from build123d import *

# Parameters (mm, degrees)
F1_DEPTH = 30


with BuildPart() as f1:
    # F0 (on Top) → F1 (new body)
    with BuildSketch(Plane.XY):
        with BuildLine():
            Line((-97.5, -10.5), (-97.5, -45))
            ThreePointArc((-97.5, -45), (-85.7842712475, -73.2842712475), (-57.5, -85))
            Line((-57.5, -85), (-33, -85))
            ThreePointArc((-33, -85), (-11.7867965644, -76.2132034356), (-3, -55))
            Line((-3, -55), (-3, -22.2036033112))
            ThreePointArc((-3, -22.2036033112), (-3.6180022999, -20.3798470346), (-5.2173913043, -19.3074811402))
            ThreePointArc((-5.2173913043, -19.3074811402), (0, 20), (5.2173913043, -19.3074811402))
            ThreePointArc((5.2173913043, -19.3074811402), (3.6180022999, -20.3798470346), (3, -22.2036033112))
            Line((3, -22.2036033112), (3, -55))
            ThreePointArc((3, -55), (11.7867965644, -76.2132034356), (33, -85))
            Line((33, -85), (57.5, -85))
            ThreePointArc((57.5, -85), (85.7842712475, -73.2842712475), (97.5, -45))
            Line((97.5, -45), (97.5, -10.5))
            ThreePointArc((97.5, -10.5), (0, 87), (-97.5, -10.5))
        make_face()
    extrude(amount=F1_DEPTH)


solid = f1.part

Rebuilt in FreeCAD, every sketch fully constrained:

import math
import FreeCAD as App
import Part
import Sketcher
from FreeCAD import Vector
Q = App.Units.Quantity

doc = App.newDocument("Part")
body = doc.addObject("PartDesign::Body", "Body")

# Sketch on XY plane
sketch1 = body.newObject("Sketcher::SketchObject", "Sketch")
sketch1.AttachmentSupport = (doc.getObject("XY_Plane"), [""])
sketch1.MapMode = "FlatFace"
sketch1.addGeometry([
    Part.LineSegment(Vector(-97.5, -10.5, 0), Vector(-97.5, -45, 0)),  # 0
    Part.ArcOfCircle(Part.Circle(Vector(-57.5, -45, 0), Vector(0, 0, 1), 40), math.radians(180), math.radians(270)),  # 1
    Part.LineSegment(Vector(-57.5, -85, 0), Vector(-33, -85, 0)),  # 2
    Part.ArcOfCircle(Part.Circle(Vector(-33, -55, 0), Vector(0, 0, 1), 30), math.radians(-90), math.radians(0)),  # 3
    Part.LineSegment(Vector(-3, -55, 0), Vector(-3, -22.203603, 0)),  # 4
    Part.ArcOfCircle(Part.Circle(Vector(-6, -22.203603, 0), Vector(0, 0, 1), 3), math.radians(0), math.radians(74.878335)),  # 5
    Part.ArcOfCircle(Part.Circle(Vector(0, 0, 0), Vector(0, 0, 1), 20), math.radians(-74.878335), math.radians(254.878335)),  # 6
    Part.ArcOfCircle(Part.Circle(Vector(6, -22.203603, 0), Vector(0, 0, 1), 3), math.radians(105.121665), math.radians(180)),  # 7
    Part.LineSegment(Vector(3, -22.203603, 0), Vector(3, -55, 0)),  # 8
    Part.ArcOfCircle(Part.Circle(Vector(33, -55, 0), Vector(0, 0, 1), 30), math.radians(180), math.radians(270)),  # 9
    Part.LineSegment(Vector(33, -85, 0), Vector(57.5, -85, 0)),  # 10
    Part.ArcOfCircle(Part.Circle(Vector(57.5, -45, 0), Vector(0, 0, 1), 40), math.radians(-90), math.radians(0)),  # 11
    Part.LineSegment(Vector(97.5, -45, 0), Vector(97.5, -10.5, 0)),  # 12
    Part.ArcOfCircle(Part.Circle(Vector(0, -10.5, 0), Vector(0, 0, 1), 97.5), math.radians(0), math.radians(180)),  # 13
], False)
sketch1.addConstraint([
    Sketcher.Constraint("Tangent", 0, 2, 1, 1),
    Sketcher.Constraint("Tangent", 1, 2, 2, 1),
    Sketcher.Constraint("Tangent", 2, 2, 3, 1),
    Sketcher.Constraint("Tangent", 3, 2, 4, 1),
    Sketcher.Constraint("Tangent", 4, 2, 5, 1),
    Sketcher.Constraint("Tangent", 5, 2, 6, 2),
    Sketcher.Constraint("Tangent", 6, 1, 7, 1),
    Sketcher.Constraint("Tangent", 7, 2, 8, 1),
    Sketcher.Constraint("Tangent", 8, 2, 9, 1),
    Sketcher.Constraint("Tangent", 9, 2, 10, 1),
    Sketcher.Constraint("Tangent", 10, 2, 11, 1),
    Sketcher.Constraint("Tangent", 11, 2, 12, 1),
    Sketcher.Constraint("Tangent", 12, 2, 13, 1),
    Sketcher.Constraint("Tangent", 13, 2, 0, 1),
    Sketcher.Constraint("Vertical", 0),
    Sketcher.Constraint("Horizontal", 2),
    Sketcher.Constraint("Vertical", 4),
    Sketcher.Constraint("Vertical", 8),
    Sketcher.Constraint("Horizontal", 10),
    Sketcher.Constraint("Vertical", 12),
    Sketcher.Constraint("Coincident", 6, 3, -1, 1),
    Sketcher.Constraint("Equal", 5, 7),
    Sketcher.Constraint("Equal", 3, 9),
    Sketcher.Constraint("Equal", 1, 11),
    Sketcher.Constraint("Symmetric", 3, 3, 9, 3, -2),
    Sketcher.Constraint("PointOnObject", 13, 3, -2),
    Sketcher.Constraint("Radius", 1, Q("40 mm")),
    Sketcher.Constraint("Radius", 3, Q("30 mm")),
    Sketcher.Constraint("Radius", 5, Q("3 mm")),
    Sketcher.Constraint("Radius", 6, Q("20 mm")),
    Sketcher.Constraint("Radius", 13, Q("97.5 mm")),
    Sketcher.Constraint("DistanceX", 2, 1, 2, 2, Q("24.5 mm")),
    Sketcher.Constraint("DistanceY", 0, 2, 0, 1, Q("34.5 mm")),
    Sketcher.Constraint("DistanceY", 1, 3, -1, 1, Q("45 mm")),
])
pad1 = body.newObject("PartDesign::Pad", "Pad")
pad1.Profile = sketch1
pad1.Length = 30

doc.recompute()
